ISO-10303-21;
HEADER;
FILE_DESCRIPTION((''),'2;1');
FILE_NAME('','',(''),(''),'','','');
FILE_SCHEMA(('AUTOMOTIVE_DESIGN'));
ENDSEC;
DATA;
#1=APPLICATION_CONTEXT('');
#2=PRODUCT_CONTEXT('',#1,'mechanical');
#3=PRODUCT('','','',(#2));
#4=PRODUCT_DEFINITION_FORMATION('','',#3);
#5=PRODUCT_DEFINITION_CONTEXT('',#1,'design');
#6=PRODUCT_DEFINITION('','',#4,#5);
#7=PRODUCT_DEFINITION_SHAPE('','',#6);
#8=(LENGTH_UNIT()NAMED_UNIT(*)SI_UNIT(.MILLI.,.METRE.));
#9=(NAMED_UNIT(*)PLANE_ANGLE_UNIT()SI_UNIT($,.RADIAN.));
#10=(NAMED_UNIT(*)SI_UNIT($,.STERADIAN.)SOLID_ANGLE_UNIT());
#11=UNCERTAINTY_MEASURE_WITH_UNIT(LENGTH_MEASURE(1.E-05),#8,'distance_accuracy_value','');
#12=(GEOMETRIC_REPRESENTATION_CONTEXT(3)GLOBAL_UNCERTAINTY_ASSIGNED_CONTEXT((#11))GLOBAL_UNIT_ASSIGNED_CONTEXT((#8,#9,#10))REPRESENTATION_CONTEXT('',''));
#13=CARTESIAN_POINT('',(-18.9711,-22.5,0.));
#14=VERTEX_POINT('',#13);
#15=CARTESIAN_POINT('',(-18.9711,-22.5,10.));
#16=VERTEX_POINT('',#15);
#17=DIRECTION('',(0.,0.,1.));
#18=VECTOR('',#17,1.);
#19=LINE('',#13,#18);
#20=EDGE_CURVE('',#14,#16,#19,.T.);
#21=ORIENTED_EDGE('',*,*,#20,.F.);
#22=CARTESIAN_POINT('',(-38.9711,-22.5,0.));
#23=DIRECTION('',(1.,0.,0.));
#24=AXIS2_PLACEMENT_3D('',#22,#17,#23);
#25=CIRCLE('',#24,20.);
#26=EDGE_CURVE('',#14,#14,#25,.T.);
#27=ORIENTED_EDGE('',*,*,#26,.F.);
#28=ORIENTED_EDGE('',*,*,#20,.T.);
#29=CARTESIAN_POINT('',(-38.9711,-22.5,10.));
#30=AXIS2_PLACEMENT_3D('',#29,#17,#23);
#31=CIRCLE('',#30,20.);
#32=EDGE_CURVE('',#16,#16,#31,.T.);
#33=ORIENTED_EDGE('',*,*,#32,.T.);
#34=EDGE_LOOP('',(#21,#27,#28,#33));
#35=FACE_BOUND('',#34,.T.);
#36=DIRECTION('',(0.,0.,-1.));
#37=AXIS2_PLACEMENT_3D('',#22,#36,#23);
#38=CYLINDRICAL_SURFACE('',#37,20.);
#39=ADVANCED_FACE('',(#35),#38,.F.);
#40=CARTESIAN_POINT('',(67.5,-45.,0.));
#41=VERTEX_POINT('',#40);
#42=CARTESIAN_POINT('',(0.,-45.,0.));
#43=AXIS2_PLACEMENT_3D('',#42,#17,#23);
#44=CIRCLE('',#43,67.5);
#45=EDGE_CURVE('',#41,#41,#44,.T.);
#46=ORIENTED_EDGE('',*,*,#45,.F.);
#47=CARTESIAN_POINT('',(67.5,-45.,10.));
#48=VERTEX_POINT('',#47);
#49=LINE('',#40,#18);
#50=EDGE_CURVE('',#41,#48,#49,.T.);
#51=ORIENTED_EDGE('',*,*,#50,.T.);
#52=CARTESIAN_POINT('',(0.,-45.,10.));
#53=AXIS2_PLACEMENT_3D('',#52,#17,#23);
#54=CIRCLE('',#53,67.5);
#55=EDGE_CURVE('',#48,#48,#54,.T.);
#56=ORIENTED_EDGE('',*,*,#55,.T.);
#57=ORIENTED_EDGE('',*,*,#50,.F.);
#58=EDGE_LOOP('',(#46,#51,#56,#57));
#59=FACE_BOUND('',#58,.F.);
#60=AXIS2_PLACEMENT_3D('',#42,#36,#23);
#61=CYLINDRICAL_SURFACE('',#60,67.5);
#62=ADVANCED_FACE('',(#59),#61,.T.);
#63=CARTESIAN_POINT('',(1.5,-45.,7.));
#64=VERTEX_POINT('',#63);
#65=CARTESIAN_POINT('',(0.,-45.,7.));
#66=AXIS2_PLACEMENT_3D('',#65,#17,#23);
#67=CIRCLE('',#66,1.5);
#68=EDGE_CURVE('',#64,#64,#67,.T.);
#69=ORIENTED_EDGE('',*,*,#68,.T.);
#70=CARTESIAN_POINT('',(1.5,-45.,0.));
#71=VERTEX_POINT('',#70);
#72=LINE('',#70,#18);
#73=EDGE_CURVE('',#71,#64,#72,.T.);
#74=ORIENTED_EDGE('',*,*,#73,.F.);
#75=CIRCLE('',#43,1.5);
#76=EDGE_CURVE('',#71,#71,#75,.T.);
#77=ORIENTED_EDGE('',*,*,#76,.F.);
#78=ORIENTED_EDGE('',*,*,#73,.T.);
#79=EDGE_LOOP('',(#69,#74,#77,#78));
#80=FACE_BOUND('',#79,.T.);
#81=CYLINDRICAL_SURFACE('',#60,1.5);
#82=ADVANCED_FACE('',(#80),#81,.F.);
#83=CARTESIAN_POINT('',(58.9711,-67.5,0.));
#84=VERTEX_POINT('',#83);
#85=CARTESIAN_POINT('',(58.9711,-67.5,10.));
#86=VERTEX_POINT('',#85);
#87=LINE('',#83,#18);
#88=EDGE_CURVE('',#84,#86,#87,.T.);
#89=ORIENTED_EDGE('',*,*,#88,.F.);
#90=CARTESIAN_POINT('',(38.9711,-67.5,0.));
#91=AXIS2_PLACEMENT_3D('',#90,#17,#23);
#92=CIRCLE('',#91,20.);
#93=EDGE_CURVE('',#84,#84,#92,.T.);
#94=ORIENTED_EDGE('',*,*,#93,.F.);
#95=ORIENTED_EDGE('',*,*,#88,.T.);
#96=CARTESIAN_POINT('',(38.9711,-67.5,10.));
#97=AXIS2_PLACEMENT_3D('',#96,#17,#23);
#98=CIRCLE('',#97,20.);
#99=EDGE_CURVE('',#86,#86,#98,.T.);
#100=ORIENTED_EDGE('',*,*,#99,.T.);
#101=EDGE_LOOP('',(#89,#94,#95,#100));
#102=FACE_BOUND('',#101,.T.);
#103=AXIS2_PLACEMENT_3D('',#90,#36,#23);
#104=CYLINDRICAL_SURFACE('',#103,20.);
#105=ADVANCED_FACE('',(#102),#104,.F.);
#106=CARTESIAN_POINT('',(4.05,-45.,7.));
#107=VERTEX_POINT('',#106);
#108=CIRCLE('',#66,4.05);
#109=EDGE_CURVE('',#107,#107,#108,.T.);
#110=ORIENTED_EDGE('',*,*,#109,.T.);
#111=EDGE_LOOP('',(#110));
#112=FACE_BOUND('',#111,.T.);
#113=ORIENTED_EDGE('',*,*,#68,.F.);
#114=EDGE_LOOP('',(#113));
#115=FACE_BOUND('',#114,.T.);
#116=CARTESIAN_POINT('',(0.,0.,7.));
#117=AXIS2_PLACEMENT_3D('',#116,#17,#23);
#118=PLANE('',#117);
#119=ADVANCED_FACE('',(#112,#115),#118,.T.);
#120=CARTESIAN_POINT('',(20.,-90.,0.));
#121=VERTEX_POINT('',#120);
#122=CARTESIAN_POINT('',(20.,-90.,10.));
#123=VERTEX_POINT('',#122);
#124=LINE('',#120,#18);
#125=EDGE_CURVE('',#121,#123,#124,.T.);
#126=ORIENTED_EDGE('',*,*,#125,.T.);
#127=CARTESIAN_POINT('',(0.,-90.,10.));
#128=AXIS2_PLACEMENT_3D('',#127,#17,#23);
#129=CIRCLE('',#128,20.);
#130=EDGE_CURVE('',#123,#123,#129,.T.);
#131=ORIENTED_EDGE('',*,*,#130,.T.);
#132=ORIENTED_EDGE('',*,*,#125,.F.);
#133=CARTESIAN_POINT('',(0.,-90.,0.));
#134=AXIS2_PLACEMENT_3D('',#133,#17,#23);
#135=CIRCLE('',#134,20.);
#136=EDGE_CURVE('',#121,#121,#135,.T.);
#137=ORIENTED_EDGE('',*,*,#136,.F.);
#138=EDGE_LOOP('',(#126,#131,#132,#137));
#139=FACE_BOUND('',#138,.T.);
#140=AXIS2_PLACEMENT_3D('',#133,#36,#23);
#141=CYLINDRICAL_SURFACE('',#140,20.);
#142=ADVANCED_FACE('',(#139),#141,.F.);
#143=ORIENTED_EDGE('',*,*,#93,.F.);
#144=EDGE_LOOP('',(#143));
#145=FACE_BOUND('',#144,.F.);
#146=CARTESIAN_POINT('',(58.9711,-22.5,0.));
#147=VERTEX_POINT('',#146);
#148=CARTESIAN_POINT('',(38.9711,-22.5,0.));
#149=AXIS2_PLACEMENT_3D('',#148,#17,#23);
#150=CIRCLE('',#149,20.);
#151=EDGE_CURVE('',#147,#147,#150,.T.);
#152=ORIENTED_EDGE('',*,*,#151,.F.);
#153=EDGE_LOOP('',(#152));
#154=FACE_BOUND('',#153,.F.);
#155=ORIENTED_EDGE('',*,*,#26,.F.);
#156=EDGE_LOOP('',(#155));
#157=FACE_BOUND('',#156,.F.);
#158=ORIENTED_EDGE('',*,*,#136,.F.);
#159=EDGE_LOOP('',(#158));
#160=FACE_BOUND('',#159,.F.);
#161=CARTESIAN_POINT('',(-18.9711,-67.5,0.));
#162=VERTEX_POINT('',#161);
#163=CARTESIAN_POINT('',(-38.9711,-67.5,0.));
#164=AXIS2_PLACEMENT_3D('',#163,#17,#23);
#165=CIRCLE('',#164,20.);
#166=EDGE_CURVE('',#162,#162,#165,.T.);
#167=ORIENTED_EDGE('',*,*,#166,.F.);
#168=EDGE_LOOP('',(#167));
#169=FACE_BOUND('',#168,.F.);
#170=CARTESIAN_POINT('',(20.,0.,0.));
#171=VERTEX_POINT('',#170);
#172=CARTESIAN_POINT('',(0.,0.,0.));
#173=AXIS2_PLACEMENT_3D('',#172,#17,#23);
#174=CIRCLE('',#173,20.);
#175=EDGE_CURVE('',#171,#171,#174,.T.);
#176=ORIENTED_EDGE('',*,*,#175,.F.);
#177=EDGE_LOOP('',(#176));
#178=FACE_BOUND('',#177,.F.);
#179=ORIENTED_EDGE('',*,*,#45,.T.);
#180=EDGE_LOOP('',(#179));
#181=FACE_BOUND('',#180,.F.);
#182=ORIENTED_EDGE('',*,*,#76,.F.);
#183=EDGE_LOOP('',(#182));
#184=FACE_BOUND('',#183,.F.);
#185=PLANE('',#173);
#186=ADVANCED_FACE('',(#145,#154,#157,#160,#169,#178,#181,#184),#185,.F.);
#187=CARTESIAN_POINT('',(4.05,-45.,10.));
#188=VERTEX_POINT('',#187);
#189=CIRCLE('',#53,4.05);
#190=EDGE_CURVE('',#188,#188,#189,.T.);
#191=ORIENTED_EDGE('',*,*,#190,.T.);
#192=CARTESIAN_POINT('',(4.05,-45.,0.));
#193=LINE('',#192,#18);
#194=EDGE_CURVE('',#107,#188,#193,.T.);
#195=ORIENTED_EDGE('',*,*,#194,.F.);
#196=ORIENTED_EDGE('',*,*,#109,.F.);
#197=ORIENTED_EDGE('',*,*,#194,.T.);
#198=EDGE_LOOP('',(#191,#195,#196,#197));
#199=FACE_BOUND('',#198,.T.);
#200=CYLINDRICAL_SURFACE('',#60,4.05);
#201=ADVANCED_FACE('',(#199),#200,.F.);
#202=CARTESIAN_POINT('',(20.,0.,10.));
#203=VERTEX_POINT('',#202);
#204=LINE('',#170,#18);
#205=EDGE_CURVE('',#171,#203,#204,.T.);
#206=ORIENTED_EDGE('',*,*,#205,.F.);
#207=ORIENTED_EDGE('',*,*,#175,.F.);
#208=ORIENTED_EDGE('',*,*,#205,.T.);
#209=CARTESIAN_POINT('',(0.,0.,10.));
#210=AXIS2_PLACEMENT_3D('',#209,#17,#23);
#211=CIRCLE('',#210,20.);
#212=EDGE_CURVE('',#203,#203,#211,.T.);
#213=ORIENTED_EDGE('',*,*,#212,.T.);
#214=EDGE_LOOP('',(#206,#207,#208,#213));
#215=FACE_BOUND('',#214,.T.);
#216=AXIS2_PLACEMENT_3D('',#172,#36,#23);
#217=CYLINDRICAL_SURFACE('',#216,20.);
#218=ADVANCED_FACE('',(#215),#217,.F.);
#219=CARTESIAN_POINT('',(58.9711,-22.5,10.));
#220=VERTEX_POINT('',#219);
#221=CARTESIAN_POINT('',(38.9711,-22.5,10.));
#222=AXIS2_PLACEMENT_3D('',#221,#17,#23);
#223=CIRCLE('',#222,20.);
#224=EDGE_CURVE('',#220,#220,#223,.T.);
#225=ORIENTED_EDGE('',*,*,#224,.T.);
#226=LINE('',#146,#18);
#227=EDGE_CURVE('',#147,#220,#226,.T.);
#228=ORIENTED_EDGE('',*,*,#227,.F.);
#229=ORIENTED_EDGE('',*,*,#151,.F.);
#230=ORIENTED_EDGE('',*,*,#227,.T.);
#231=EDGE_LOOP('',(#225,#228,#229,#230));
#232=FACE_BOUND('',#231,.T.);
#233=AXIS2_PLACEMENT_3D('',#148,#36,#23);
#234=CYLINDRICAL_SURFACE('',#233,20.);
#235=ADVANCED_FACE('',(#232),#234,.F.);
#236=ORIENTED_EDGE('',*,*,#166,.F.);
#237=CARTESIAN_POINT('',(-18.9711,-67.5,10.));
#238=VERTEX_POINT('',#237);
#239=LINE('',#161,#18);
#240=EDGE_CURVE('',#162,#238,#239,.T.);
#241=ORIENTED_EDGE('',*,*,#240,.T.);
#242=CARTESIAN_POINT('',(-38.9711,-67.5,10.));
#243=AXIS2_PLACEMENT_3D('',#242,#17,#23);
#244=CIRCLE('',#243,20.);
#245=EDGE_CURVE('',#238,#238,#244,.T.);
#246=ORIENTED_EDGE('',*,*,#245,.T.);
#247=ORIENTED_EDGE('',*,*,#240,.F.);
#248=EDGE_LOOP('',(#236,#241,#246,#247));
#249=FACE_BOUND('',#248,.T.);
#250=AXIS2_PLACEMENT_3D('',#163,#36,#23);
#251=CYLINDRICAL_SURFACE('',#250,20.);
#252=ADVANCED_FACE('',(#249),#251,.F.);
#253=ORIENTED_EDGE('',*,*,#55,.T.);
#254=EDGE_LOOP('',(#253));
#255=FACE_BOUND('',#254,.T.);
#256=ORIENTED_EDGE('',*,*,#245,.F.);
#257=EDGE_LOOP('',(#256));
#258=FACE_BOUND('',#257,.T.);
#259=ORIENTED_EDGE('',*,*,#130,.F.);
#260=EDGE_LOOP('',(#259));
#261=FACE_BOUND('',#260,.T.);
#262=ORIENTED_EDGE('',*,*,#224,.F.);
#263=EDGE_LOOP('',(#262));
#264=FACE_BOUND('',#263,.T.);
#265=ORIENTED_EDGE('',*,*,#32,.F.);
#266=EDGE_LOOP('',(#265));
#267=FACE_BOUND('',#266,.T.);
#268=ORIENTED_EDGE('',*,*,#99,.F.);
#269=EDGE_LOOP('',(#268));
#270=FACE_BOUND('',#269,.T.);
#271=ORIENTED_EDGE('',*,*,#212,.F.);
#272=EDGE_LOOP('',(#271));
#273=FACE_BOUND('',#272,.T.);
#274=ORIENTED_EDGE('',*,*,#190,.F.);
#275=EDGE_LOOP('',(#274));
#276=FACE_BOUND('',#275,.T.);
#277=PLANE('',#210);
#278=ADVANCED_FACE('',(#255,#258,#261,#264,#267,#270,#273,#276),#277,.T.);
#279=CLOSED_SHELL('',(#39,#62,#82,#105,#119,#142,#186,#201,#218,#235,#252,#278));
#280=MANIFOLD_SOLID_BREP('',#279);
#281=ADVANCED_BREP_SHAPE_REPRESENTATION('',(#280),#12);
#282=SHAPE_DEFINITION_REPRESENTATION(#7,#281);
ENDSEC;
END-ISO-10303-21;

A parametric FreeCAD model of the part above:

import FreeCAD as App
import Part
import Sketcher
from FreeCAD import Vector

doc = App.newDocument("Part")
body = doc.addObject("PartDesign::Body", "Body")

# Sketch on XY plane
sketch1 = body.newObject("Sketcher::SketchObject", "Sketch")
sketch1.AttachmentSupport = (doc.getObject("XY_Plane"), [""])
sketch1.MapMode = "FlatFace"
sketch1.addGeometry([
    Part.Circle(Vector(0, -45, 0), Vector(0, 0, 1), 67.5),  # 0
    Part.Circle(Vector(-39, -67.5, 0), Vector(0, 0, 1), 20),  # 1
    Part.Circle(Vector(0, -90, 0), Vector(0, 0, 1), 20),  # 2
    Part.Circle(Vector(39, -67.5, 0), Vector(0, 0, 1), 20),  # 3
    Part.Circle(Vector(-39, -22.5, 0), Vector(0, 0, 1), 20),  # 4
    Part.Circle(Vector(0, -45, 0), Vector(0, 0, 1), 4),  # 5
    Part.Circle(Vector(39, -22.5, 0), Vector(0, 0, 1), 20),  # 6
    Part.Circle(Vector(0, 0, 0), Vector(0, 0, 1), 20),  # 7
], False)
sketch1.addConstraint([
    Sketcher.Constraint("Coincident", 7, 3, -1, 1),
    Sketcher.Constraint("Coincident", 5, 3, 0, 3),
    Sketcher.Constraint("Equal", 1, 2),
    Sketcher.Constraint("Equal", 2, 3),
    Sketcher.Constraint("Equal", 3, 4),
    Sketcher.Constraint("Equal", 4, 6),
    Sketcher.Constraint("Equal", 6, 7),
    Sketcher.Constraint("Symmetric", 1, 3, 3, 3, -2),
    Sketcher.Constraint("Symmetric", 4, 3, 6, 3, -2),
    Sketcher.Constraint("PointOnObject", 0, 3, -2),
    Sketcher.Constraint("PointOnObject", 2, 3, -2),
    Sketcher.Constraint("Vertical", 1, 3, 4, 3),
    Sketcher.Constraint("Diameter", 0, 135.0),
    Sketcher.Constraint("Diameter", 1, 40.0),
    Sketcher.Constraint("Diameter", 5, 8.1),
    Sketcher.Constraint("DistanceY", 0, 3, -1, 1, 45.0),
    Sketcher.Constraint("DistanceY", 2, 3, 0, 3, 45.0),
    Sketcher.Constraint("DistanceY", 1, 3, 4, 3, 45.0),
    Sketcher.Constraint("DistanceY", 1, 3, -1, 1, 67.5),
    Sketcher.Constraint("DistanceX", 1, 3, -1, 1, 38.971),
])
pad1 = body.newObject("PartDesign::Pad", "Pad")
pad1.Profile = sketch1
pad1.Length = 10

# Sketch on XY plane
sketch2 = body.newObject("Sketcher::SketchObject", "Sketch001")
sketch2.AttachmentSupport = (doc.getObject("XY_Plane"), [""])
sketch2.MapMode = "FlatFace"
sketch2.addGeometry([
    Part.Circle(Vector(0, -45, 0), Vector(0, 0, 1), 4),
    Part.Circle(Vector(0, -45, 0), Vector(0, 0, 1), 1.5),
], False)
sketch2.addConstraint([
    Sketcher.Constraint("Coincident", 1, 3, 0, 3),
    Sketcher.Constraint("PointOnObject", 0, 3, -2),
    Sketcher.Constraint("Diameter", 1, 3.0),
    Sketcher.Constraint("Diameter", 0, 8.1),
    Sketcher.Constraint("DistanceY", 0, 3, -1, 1, 45.0),
])
pad2 = body.newObject("PartDesign::Pad", "Pad001")
pad2.Profile = sketch2
pad2.Length = 7

doc.recompute()
